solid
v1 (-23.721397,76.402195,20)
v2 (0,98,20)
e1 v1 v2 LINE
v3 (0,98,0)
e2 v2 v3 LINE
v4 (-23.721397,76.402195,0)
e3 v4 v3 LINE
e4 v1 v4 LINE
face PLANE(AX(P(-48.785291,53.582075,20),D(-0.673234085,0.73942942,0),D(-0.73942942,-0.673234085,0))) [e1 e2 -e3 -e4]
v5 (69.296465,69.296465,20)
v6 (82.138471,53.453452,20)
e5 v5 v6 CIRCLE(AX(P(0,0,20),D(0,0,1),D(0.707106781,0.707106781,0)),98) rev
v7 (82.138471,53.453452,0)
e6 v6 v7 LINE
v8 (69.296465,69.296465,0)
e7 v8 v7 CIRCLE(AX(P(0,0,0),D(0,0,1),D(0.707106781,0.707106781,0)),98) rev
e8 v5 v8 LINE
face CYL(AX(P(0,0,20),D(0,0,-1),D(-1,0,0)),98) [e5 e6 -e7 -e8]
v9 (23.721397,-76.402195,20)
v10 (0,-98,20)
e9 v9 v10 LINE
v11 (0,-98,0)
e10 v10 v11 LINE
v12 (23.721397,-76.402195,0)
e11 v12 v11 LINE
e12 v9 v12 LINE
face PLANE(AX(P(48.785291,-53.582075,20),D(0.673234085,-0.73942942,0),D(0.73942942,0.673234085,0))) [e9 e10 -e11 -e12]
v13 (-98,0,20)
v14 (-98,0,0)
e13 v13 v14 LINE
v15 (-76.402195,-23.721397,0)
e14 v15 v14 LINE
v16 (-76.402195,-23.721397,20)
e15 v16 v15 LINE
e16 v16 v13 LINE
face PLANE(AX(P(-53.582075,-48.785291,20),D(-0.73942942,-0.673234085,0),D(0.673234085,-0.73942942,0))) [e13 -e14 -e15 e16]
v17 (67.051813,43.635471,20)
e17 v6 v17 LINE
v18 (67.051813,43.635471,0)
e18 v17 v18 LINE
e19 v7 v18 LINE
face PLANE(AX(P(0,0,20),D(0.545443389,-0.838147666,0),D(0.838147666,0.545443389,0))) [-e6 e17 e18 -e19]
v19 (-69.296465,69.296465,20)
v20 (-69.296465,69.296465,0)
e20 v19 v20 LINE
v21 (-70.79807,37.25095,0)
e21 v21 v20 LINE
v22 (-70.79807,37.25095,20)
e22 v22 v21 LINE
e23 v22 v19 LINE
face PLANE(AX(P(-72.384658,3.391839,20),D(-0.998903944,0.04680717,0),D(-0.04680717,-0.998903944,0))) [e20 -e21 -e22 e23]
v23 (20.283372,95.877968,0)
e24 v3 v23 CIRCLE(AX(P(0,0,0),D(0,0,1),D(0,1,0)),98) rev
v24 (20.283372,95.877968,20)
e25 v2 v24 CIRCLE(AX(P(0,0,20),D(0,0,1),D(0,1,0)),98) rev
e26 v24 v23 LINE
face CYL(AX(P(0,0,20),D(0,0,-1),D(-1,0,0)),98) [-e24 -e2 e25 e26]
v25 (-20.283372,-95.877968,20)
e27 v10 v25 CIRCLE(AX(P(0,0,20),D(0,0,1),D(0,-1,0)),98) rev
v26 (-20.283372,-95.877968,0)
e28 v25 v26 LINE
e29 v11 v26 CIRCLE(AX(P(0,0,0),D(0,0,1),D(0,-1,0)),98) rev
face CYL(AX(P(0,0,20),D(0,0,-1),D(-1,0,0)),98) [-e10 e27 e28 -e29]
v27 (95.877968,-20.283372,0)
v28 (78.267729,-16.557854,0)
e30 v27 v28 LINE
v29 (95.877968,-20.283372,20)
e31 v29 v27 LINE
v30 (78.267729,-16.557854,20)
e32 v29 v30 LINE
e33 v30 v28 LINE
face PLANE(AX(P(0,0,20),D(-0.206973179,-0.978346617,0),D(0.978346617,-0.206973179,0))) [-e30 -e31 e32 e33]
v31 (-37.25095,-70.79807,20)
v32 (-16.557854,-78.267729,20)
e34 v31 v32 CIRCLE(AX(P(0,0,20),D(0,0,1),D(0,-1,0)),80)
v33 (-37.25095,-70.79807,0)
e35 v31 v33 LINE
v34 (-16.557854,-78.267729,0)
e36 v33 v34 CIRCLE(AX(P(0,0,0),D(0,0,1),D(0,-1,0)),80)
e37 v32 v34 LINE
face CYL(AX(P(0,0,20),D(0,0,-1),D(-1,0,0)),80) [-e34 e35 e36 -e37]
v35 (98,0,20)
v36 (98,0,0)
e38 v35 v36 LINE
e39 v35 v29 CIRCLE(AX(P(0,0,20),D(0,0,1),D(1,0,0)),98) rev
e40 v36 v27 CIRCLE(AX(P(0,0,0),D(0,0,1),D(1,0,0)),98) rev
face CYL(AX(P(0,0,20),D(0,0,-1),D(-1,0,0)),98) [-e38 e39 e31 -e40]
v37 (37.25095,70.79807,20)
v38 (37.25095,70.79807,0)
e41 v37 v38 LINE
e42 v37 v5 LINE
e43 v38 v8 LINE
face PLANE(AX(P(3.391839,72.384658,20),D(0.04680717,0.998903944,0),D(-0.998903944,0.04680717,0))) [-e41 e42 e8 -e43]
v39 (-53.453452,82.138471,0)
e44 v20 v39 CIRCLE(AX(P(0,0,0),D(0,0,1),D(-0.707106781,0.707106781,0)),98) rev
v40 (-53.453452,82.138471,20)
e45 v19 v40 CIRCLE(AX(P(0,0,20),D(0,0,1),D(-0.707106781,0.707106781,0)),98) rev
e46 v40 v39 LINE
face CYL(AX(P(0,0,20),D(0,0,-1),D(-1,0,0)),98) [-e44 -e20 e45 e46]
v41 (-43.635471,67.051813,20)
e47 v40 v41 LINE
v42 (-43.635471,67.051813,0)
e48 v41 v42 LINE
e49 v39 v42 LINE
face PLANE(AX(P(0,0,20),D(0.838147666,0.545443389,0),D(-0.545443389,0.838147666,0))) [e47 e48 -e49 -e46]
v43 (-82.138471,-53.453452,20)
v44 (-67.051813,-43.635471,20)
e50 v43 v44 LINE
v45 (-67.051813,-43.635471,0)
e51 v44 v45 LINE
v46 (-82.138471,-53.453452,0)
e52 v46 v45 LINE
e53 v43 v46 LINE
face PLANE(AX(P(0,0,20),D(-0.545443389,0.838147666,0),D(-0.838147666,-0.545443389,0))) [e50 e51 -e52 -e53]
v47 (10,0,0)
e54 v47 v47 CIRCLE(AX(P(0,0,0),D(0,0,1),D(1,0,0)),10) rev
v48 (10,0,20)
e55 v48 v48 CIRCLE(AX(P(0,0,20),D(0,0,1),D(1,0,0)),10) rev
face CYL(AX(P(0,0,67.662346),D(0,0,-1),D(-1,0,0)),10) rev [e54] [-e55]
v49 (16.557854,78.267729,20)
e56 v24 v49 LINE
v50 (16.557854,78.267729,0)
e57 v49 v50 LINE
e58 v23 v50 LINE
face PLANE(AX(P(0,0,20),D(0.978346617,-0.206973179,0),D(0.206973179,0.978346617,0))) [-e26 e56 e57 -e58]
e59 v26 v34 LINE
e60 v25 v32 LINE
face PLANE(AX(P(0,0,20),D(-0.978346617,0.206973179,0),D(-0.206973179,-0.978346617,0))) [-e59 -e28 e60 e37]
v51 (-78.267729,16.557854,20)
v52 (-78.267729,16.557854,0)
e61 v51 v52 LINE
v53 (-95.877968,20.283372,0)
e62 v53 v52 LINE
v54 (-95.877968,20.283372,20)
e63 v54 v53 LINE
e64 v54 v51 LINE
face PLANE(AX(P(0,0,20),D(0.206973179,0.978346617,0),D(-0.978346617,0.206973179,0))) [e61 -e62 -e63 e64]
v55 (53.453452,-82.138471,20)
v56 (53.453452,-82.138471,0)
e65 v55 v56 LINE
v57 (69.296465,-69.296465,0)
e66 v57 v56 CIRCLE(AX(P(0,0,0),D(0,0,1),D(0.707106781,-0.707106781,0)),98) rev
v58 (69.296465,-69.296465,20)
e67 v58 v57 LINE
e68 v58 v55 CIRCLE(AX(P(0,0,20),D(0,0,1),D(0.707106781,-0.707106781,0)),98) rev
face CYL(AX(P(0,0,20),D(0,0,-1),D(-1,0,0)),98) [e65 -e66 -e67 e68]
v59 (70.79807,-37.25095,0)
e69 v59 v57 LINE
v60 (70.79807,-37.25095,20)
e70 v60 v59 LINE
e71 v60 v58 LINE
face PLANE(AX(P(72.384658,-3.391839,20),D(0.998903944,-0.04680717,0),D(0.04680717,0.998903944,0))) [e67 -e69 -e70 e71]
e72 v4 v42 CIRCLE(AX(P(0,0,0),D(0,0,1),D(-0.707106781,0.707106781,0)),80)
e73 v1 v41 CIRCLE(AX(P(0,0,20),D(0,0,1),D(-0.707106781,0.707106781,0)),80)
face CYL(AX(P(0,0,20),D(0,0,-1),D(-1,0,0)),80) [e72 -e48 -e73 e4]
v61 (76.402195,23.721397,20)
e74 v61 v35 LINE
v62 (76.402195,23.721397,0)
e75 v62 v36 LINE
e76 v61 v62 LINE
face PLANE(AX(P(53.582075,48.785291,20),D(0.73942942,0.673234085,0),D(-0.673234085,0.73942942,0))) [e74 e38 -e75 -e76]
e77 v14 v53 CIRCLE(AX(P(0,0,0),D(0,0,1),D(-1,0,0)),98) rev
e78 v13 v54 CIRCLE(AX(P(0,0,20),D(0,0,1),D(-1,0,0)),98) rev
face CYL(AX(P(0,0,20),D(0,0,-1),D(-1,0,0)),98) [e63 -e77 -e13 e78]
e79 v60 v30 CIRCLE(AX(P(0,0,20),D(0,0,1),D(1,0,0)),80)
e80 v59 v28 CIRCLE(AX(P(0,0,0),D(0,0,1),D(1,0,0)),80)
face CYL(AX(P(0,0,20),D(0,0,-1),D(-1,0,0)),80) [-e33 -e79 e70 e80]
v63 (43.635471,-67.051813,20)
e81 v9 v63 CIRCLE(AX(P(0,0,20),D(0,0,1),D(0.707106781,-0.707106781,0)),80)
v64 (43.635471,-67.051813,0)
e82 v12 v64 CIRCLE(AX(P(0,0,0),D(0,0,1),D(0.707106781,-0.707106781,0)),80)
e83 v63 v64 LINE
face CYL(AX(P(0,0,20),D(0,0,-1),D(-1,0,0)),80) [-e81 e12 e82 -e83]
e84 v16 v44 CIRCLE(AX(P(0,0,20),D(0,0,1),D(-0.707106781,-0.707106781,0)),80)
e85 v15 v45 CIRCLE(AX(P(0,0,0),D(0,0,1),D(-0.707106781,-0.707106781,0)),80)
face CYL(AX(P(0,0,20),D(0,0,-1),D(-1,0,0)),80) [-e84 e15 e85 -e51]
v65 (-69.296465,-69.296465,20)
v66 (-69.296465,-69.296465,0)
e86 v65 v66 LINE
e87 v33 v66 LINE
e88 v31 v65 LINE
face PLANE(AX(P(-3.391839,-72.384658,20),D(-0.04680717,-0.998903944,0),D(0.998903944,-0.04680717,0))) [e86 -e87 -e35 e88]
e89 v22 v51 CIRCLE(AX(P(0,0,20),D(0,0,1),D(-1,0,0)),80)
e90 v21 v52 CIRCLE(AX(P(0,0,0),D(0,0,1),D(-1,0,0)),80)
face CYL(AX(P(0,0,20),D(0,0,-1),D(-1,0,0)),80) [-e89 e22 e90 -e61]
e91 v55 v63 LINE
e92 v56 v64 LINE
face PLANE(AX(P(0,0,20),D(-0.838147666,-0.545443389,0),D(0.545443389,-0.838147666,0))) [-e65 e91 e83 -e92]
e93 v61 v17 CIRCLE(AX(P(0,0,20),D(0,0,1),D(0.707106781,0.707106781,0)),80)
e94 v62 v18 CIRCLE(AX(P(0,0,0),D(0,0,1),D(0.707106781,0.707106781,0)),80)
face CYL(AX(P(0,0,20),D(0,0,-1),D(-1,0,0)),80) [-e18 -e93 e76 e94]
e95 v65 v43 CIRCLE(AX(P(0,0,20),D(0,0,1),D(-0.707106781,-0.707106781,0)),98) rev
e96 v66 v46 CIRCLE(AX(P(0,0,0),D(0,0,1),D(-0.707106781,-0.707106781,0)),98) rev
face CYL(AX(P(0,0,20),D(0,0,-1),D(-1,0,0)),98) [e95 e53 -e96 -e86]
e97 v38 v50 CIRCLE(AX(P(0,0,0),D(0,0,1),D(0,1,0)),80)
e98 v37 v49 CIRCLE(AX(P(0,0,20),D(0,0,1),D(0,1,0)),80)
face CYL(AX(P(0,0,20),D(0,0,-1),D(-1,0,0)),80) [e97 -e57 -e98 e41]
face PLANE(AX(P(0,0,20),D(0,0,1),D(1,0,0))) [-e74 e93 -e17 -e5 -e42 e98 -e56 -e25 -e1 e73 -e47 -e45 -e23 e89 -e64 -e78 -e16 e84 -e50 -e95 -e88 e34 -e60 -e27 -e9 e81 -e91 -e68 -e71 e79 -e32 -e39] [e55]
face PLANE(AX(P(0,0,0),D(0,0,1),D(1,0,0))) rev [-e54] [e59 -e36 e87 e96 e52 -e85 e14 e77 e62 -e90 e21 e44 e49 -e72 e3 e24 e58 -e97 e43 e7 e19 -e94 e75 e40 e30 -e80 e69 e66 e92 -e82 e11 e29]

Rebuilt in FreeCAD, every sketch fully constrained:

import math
import FreeCAD as App
import Part
import Sketcher
from FreeCAD import Vector
Q = App.Units.Quantity

doc = App.newDocument("Part")
body = doc.addObject("PartDesign::Body", "Body")

# Sketch on XY plane
sketch1 = body.newObject("Sketcher::SketchObject", "Sketch")
sketch1.AttachmentSupport = (doc.getObject("XY_Plane"), [""])
sketch1.MapMode = "FlatFace"
sketch1.addGeometry(Part.LineSegment(Vector(78.267729, -16.557854, 0), Vector(95.877968, -20.283372, 0)), False)
sketch1.addGeometry(Part.ArcOfCircle(Part.Circle(Vector(0, 0, 0), Vector(0, 0, 1), 98), math.radians(-11.945032), math.radians(0)), False)
sketch1.addGeometry(Part.LineSegment(Vector(98, 0, 0), Vector(76.402195, 23.721397, 0)), False)
sketch1.addGeometry(Part.LineSegment(Vector(76.402195, 23.721397, 0), Vector(0, 0, 0)), False)
sketch1.addGeometry(Part.LineSegment(Vector(0, 0, 0), Vector(70.79807, -37.25095, 0)), False)
sketch1.addGeometry(Part.ArcOfCircle(Part.Circle(Vector(0, 0, 0), Vector(0, 0, 1), 80), math.radians(-27.751447), math.radians(-11.945032)), False)
sketch1.addConstraint(Sketcher.Constraint("Coincident", 0, 2, 1, 1))
sketch1.addConstraint(Sketcher.Constraint("Coincident", 1, 2, 2, 1))
sketch1.addConstraint(Sketcher.Constraint("Coincident", 2, 2, 3, 1))
sketch1.addConstraint(Sketcher.Constraint("Coincident", 3, 2, 4, 1))
sketch1.addConstraint(Sketcher.Constraint("Coincident", 4, 2, 5, 1))
sketch1.addConstraint(Sketcher.Constraint("Coincident", 5, 2, 0, 1))
sketch1.addConstraint(Sketcher.Constraint("Coincident", 1, 3, -1, 1))
sketch1.addConstraint(Sketcher.Constraint("Coincident", 5, 3, -1, 1))
sketch1.addConstraint(Sketcher.Constraint("Coincident", 3, 2, -1, 1))
sketch1.addConstraint(Sketcher.Constraint("PointOnObject", 1, 2, -1))
sketch1.addConstraint(Sketcher.Constraint("Equal", 3, 4))
sketch1.addConstraint(Sketcher.Constraint("Radius", 1, Q("98 mm")))
sketch1.addConstraint(Sketcher.Constraint("Radius", 5, Q("80 mm")))
sketch1.addConstraint(Sketcher.Constraint("DistanceX", 4, 2, 0, 2, Q("25.079898 mm")))
sketch1.addConstraint(Sketcher.Constraint("DistanceX", -1, 1, 0, 2, Q("95.877968 mm")))
sketch1.addConstraint(Sketcher.Constraint("DistanceX", -1, 1, 5, 2, Q("78.267729 mm")))
sketch1.addConstraint(Sketcher.Constraint("DistanceY", 0, 2, 2, 2, Q("44.004768 mm")))
pad1 = body.newObject("PartDesign::Pad", "Pad")
pad1.Profile = sketch1
pad1.Length = 20
doc.recompute()

polarpattern = body.newObject("PartDesign::PolarPattern", "PolarPattern")
polarpattern.Originals = [pad1]
polarpattern.Axis = (doc.getObject("Z_Axis"), [""])
polarpattern.Angle = 360
polarpattern.Occurrences = 8
body.Tip = polarpattern

# Sketch on XY plane
sketch2 = body.newObject("Sketcher::SketchObject", "Sketch001")
sketch2.AttachmentSupport = (doc.getObject("XY_Plane"), [""])
sketch2.MapMode = "FlatFace"
sketch2.addGeometry(Part.Circle(Vector(0, 0, 0), Vector(0, 0, 1), 10), False)
sketch2.addConstraint(Sketcher.Constraint("Coincident", 0, 3, -1, 1))
sketch2.addConstraint(Sketcher.Constraint("Diameter", 0, Q("20 mm")))
pocket1 = body.newObject("PartDesign::Pocket", "Pocket")
pocket1.Profile = sketch2
pocket1.Type = "ThroughAll"
pocket1.Midplane = True

doc.recompute()
